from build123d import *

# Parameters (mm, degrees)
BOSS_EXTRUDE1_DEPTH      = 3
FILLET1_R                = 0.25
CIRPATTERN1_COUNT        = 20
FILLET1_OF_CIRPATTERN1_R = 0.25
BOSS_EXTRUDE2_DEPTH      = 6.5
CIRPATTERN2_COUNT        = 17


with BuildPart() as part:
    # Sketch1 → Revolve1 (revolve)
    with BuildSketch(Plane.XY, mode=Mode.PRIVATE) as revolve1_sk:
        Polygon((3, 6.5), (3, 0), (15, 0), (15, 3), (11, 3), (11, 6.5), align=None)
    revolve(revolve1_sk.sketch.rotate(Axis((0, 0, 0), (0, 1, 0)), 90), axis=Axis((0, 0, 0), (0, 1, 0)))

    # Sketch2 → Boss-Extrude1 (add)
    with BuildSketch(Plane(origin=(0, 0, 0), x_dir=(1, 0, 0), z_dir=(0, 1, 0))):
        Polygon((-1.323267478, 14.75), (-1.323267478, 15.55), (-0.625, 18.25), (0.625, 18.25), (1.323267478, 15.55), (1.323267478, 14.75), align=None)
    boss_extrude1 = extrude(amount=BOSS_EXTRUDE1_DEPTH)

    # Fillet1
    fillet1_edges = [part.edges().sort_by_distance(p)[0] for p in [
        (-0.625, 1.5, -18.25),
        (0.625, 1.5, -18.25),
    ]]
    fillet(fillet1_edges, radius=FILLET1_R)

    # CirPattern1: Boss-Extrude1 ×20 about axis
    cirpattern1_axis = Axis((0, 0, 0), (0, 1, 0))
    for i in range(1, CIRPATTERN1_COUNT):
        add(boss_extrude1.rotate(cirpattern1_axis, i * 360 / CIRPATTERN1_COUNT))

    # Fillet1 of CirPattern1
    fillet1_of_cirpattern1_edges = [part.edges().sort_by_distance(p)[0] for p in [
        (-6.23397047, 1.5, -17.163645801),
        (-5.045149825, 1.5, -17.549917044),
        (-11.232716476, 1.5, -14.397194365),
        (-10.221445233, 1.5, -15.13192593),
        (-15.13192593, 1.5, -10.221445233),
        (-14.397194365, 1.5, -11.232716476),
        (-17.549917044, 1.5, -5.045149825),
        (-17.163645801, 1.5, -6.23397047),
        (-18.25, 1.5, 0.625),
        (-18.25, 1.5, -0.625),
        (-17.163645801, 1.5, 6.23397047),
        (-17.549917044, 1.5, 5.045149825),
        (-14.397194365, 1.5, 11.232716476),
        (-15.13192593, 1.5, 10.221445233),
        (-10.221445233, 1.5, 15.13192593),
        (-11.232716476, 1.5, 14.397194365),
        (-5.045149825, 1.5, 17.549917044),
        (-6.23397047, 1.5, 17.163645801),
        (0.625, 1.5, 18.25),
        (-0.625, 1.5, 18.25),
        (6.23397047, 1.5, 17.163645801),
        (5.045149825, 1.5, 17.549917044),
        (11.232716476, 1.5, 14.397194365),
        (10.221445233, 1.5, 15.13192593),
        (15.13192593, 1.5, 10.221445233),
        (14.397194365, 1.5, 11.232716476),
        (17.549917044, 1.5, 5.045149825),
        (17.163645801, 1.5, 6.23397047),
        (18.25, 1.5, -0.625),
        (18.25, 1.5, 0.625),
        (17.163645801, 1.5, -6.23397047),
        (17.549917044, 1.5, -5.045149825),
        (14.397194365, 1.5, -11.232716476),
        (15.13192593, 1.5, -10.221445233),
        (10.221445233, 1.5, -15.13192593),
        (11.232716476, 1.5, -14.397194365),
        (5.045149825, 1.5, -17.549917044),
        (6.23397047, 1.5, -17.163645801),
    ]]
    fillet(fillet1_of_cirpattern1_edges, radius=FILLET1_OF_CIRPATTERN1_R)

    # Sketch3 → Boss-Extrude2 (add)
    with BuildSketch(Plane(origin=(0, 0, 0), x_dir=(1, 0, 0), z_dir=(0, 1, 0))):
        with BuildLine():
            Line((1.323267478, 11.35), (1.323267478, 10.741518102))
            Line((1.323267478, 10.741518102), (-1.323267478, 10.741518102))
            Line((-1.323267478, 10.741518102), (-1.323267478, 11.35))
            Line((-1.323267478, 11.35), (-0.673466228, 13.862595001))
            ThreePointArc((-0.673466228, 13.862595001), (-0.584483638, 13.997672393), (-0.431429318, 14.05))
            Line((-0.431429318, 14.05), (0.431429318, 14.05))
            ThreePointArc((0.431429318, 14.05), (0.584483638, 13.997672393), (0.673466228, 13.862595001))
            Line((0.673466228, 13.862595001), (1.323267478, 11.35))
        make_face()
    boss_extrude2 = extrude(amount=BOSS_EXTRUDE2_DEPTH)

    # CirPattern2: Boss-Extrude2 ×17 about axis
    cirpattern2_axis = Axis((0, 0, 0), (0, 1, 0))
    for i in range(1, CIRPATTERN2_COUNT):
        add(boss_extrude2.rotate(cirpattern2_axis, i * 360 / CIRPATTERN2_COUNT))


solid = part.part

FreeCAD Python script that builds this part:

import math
import FreeCAD as App
import Part
import Sketcher
Q = App.Units.Quantity


def edges_at(feature, points):
    """Names of the edges that pass closest to the given points."""
    edges = feature.Shape.Edges
    near = lambda p: min(range(len(edges)), key=lambda i: edges[i].distToShape(Part.Vertex(*p))[0])
    return sorted({f"Edge{near(p) + 1}" for p in points})


def add_polygon(sketch, points):
    """Adds a closed chain of lines whose ends are joined by coincident constraints."""
    first, n = sketch.GeometryCount, len(points)
    for a, b in zip(points, points[1:] + points[:1]):
        sketch.addGeometry(Part.LineSegment(App.Vector(*a, 0), App.Vector(*b, 0)), False)
    for i in range(n):
        sketch.addConstraint(Sketcher.Constraint("Coincident", first + i, 2, first + (i + 1) % n, 1))

doc = App.newDocument("Part")
body = doc.addObject("PartDesign::Body", "Body")

# Sketch on XY plane
sketch1 = body.newObject("Sketcher::SketchObject", "Sketch")
sketch1.AttachmentSupport = (doc.getObject("XY_Plane"), [""])
sketch1.MapMode = "FlatFace"
add_polygon(sketch1, [(3, 6.5), (3, 0), (15, 0), (15, 3), (11, 3), (11, 6.5)])  # lines 0-5
sketch1.addConstraint(Sketcher.Constraint("Vertical", 0))
sketch1.addConstraint(Sketcher.Constraint("Horizontal", 1))
sketch1.addConstraint(Sketcher.Constraint("Vertical", 2))
sketch1.addConstraint(Sketcher.Constraint("Horizontal", 3))
sketch1.addConstraint(Sketcher.Constraint("Vertical", 4))
sketch1.addConstraint(Sketcher.Constraint("Horizontal", 5))
sketch1.addConstraint(Sketcher.Constraint("PointOnObject", 0, 2, -1))
sketch1.addConstraint(Sketcher.Constraint("DistanceX", 1, 1, 1, 2, 12.0))
sketch1.addConstraint(Sketcher.Constraint("DistanceX", 3, 2, 3, 1, 4.0))
sketch1.addConstraint(Sketcher.Constraint("DistanceY", 2, 1, 2, 2, 3.0))
sketch1.addConstraint(Sketcher.Constraint("DistanceY", 0, 2, 0, 1, 6.5))
sketch1.addConstraint(Sketcher.Constraint("DistanceX", -1, 1, 0, 2, 3.0))
revolution = body.newObject("PartDesign::Revolution", "Revolution")
revolution.Profile = sketch1
revolution.ReferenceAxis = (sketch1, ["V_Axis"])
revolution.Angle = 360

# Sketch on XZ plane
sketch2 = body.newObject("Sketcher::SketchObject", "Sketch001")
sketch2.AttachmentSupport = (doc.getObject("XZ_Plane"), [""])
sketch2.MapMode = "FlatFace"
add_polygon(sketch2, [(-1.3, -15.6), (-1.3, -14.8), (1.3, -14.8), (1.3, -15.6), (0.6, -18.2), (-0.6, -18.2)])  # lines 0-5
sketch2.addConstraint(Sketcher.Constraint("Vertical", 0))
sketch2.addConstraint(Sketcher.Constraint("Horizontal", 1))
sketch2.addConstraint(Sketcher.Constraint("Vertical", 2))
sketch2.addConstraint(Sketcher.Constraint("Horizontal", 4))
sketch2.addConstraint(Sketcher.Constraint("Symmetric", 2, 2, 5, 2, -2))
sketch2.addConstraint(Sketcher.Constraint("Equal", 3, 5))
sketch2.addConstraint(Sketcher.Constraint("DistanceY", 0, 1, 0, 2, 0.8))
sketch2.addConstraint(Sketcher.Constraint("Angle", 3, Q("-104.5 deg")))
sketch2.addConstraint(Sketcher.Constraint("DistanceX", 4, 2, 4, 1, 1.25))
sketch2.addConstraint(Sketcher.Constraint("DistanceY", 3, 2, 2, 2, 2.7))
sketch2.addConstraint(Sketcher.Constraint("DistanceY", 0, 2, -1, 1, 14.75))
pad1 = body.newObject("PartDesign::Pad", "Pad")
pad1.Profile = sketch2
pad1.Length = 3
pad1.Reversed = True
doc.recompute()

fillet = body.newObject("PartDesign::Fillet", "Fillet")
fillet.Base = (pad1, edges_at(pad1, [(-0.625, 1.5, -18.25), (0.625, 1.5, -18.25)]))
fillet.Radius = 0.25
doc.recompute()

polarpattern = body.newObject("PartDesign::PolarPattern", "PolarPattern")
polarpattern.Originals = [pad1]
polarpattern.Axis = (doc.getObject("Y_Axis"), [""])
polarpattern.Angle = 360
polarpattern.Occurrences = 20
body.Tip = polarpattern
doc.recompute()

fillet2 = body.newObject("PartDesign::Fillet", "Fillet001")
fillet2.Base = (polarpattern, edges_at(polarpattern, [
    (-6.234, 1.5, -17.164),
    (-5.045, 1.5, -17.55),
    (-11.233, 1.5, -14.397),
    (-10.221, 1.5, -15.132),
    (-15.132, 1.5, -10.221),
    (-14.397, 1.5, -11.233),
    (-17.55, 1.5, -5.045),
    (-17.164, 1.5, -6.234),
    (-18.25, 1.5, 0.625),
    (-18.25, 1.5, -0.625),
    (-17.164, 1.5, 6.234),
    (-17.55, 1.5, 5.045),
    (-14.397, 1.5, 11.233),
    (-15.132, 1.5, 10.221),
    (-10.221, 1.5, 15.132),
    (-11.233, 1.5, 14.397),
    (-5.045, 1.5, 17.55),
    (-6.234, 1.5, 17.164),
    (0.625, 1.5, 18.25),
    (-0.625, 1.5, 18.25),
    (6.234, 1.5, 17.164),
    (5.045, 1.5, 17.55),
    (11.233, 1.5, 14.397),
    (10.221, 1.5, 15.132),
    (15.132, 1.5, 10.221),
    (14.397, 1.5, 11.233),
    (17.55, 1.5, 5.045),
    (17.164, 1.5, 6.234),
    (18.25, 1.5, -0.625),
    (18.25, 1.5, 0.625),
    (17.164, 1.5, -6.234),
    (17.55, 1.5, -5.045),
    (14.397, 1.5, -11.233),
    (15.132, 1.5, -10.221),
    (10.221, 1.5, -15.132),
    (11.233, 1.5, -14.397),
    (5.045, 1.5, -17.55),
    (6.234, 1.5, -17.164),
]))
fillet2.Radius = 0.25

# Sketch on XZ plane
sketch3 = body.newObject("Sketcher::SketchObject", "Sketch002")
sketch3.AttachmentSupport = (doc.getObject("XZ_Plane"), [""])
sketch3.MapMode = "FlatFace"
sketch3.addGeometry(Part.LineSegment(App.Vector(1.32, -10.74, 0), App.Vector(1.32, -11.35, 0)), False)
sketch3.addGeometry(Part.LineSegment(App.Vector(1.32, -11.35, 0), App.Vector(0.67, -13.86, 0)), False)
sketch3.addGeometry(Part.ArcOfCircle(Part.Circle(App.Vector(0.43, -13.8, 0), App.Vector(0, 0, 1), 0.25), math.radians(-90), math.radians(-15)), False)
sketch3.addGeometry(Part.LineSegment(App.Vector(0.43, -14.05, 0), App.Vector(-0.43, -14.05, 0)), False)
sketch3.addGeometry(Part.ArcOfCircle(Part.Circle(App.Vector(-0.43, -13.8, 0), App.Vector(0, 0, 1), 0.25), math.radians(-165), math.radians(-90)), False)
sketch3.addGeometry(Part.LineSegment(App.Vector(-0.67, -13.86, 0), App.Vector(-1.32, -11.35, 0)), False)
sketch3.addGeometry(Part.LineSegment(App.Vector(-1.32, -11.35, 0), App.Vector(-1.32, -10.74, 0)), False)
sketch3.addGeometry(Part.LineSegment(App.Vector(-1.32, -10.74, 0), App.Vector(1.32, -10.74, 0)), False)
sketch3.addConstraint(Sketcher.Constraint("Coincident", 0, 2, 1, 1))
sketch3.addConstraint(Sketcher.Constraint("Tangent", 1, 2, 2, 2))
sketch3.addConstraint(Sketcher.Constraint("Tangent", 2, 1, 3, 1))
sketch3.addConstraint(Sketcher.Constraint("Tangent", 3, 2, 4, 2))
sketch3.addConstraint(Sketcher.Constraint("Tangent", 4, 1, 5, 1))
sketch3.addConstraint(Sketcher.Constraint("Coincident", 5, 2, 6, 1))
sketch3.addConstraint(Sketcher.Constraint("Coincident", 6, 2, 7, 1))
sketch3.addConstraint(Sketcher.Constraint("Coincident", 7, 2, 0, 1))
sketch3.addConstraint(Sketcher.Constraint("Vertical", 0))
sketch3.addConstraint(Sketcher.Constraint("Horizontal", 3))
sketch3.addConstraint(Sketcher.Constraint("Vertical", 6))
sketch3.addConstraint(Sketcher.Constraint("Horizontal", 7))
sketch3.addConstraint(Sketcher.Constraint("Equal", 2, 4))
sketch3.addConstraint(Sketcher.Constraint("Symmetric", 1, 2, 4, 1, -2))
sketch3.addConstraint(Sketcher.Constraint("Horizontal", 0, 2, 5, 2))
sketch3.addConstraint(Sketcher.Constraint("Radius", 2, 0.25))
sketch3.addConstraint(Sketcher.Constraint("Angle", 1, Q("-104.5 deg")))
sketch3.addConstraint(Sketcher.Constraint("DistanceY", 2, 3, -1, 1, 13.8))
sketch3.addConstraint(Sketcher.Constraint("DistanceY", 2, 1, 0, 2, 2.7))
sketch3.addConstraint(Sketcher.Constraint("DistanceX", 3, 2, 3, 1, 0.862859))
sketch3.addConstraint(Sketcher.Constraint("DistanceY", 0, 2, 0, 1, 0.608482))
pad2 = body.newObject("PartDesign::Pad", "Pad001")
pad2.Profile = sketch3
pad2.Length = 6.5
pad2.Reversed = True
doc.recompute()

polarpattern2 = body.newObject("PartDesign::PolarPattern", "PolarPattern001")
polarpattern2.Originals = [pad2]
polarpattern2.Axis = (doc.getObject("Y_Axis"), [""])
polarpattern2.Angle = 360
polarpattern2.Occurrences = 17
body.Tip = polarpattern2

doc.recompute()
